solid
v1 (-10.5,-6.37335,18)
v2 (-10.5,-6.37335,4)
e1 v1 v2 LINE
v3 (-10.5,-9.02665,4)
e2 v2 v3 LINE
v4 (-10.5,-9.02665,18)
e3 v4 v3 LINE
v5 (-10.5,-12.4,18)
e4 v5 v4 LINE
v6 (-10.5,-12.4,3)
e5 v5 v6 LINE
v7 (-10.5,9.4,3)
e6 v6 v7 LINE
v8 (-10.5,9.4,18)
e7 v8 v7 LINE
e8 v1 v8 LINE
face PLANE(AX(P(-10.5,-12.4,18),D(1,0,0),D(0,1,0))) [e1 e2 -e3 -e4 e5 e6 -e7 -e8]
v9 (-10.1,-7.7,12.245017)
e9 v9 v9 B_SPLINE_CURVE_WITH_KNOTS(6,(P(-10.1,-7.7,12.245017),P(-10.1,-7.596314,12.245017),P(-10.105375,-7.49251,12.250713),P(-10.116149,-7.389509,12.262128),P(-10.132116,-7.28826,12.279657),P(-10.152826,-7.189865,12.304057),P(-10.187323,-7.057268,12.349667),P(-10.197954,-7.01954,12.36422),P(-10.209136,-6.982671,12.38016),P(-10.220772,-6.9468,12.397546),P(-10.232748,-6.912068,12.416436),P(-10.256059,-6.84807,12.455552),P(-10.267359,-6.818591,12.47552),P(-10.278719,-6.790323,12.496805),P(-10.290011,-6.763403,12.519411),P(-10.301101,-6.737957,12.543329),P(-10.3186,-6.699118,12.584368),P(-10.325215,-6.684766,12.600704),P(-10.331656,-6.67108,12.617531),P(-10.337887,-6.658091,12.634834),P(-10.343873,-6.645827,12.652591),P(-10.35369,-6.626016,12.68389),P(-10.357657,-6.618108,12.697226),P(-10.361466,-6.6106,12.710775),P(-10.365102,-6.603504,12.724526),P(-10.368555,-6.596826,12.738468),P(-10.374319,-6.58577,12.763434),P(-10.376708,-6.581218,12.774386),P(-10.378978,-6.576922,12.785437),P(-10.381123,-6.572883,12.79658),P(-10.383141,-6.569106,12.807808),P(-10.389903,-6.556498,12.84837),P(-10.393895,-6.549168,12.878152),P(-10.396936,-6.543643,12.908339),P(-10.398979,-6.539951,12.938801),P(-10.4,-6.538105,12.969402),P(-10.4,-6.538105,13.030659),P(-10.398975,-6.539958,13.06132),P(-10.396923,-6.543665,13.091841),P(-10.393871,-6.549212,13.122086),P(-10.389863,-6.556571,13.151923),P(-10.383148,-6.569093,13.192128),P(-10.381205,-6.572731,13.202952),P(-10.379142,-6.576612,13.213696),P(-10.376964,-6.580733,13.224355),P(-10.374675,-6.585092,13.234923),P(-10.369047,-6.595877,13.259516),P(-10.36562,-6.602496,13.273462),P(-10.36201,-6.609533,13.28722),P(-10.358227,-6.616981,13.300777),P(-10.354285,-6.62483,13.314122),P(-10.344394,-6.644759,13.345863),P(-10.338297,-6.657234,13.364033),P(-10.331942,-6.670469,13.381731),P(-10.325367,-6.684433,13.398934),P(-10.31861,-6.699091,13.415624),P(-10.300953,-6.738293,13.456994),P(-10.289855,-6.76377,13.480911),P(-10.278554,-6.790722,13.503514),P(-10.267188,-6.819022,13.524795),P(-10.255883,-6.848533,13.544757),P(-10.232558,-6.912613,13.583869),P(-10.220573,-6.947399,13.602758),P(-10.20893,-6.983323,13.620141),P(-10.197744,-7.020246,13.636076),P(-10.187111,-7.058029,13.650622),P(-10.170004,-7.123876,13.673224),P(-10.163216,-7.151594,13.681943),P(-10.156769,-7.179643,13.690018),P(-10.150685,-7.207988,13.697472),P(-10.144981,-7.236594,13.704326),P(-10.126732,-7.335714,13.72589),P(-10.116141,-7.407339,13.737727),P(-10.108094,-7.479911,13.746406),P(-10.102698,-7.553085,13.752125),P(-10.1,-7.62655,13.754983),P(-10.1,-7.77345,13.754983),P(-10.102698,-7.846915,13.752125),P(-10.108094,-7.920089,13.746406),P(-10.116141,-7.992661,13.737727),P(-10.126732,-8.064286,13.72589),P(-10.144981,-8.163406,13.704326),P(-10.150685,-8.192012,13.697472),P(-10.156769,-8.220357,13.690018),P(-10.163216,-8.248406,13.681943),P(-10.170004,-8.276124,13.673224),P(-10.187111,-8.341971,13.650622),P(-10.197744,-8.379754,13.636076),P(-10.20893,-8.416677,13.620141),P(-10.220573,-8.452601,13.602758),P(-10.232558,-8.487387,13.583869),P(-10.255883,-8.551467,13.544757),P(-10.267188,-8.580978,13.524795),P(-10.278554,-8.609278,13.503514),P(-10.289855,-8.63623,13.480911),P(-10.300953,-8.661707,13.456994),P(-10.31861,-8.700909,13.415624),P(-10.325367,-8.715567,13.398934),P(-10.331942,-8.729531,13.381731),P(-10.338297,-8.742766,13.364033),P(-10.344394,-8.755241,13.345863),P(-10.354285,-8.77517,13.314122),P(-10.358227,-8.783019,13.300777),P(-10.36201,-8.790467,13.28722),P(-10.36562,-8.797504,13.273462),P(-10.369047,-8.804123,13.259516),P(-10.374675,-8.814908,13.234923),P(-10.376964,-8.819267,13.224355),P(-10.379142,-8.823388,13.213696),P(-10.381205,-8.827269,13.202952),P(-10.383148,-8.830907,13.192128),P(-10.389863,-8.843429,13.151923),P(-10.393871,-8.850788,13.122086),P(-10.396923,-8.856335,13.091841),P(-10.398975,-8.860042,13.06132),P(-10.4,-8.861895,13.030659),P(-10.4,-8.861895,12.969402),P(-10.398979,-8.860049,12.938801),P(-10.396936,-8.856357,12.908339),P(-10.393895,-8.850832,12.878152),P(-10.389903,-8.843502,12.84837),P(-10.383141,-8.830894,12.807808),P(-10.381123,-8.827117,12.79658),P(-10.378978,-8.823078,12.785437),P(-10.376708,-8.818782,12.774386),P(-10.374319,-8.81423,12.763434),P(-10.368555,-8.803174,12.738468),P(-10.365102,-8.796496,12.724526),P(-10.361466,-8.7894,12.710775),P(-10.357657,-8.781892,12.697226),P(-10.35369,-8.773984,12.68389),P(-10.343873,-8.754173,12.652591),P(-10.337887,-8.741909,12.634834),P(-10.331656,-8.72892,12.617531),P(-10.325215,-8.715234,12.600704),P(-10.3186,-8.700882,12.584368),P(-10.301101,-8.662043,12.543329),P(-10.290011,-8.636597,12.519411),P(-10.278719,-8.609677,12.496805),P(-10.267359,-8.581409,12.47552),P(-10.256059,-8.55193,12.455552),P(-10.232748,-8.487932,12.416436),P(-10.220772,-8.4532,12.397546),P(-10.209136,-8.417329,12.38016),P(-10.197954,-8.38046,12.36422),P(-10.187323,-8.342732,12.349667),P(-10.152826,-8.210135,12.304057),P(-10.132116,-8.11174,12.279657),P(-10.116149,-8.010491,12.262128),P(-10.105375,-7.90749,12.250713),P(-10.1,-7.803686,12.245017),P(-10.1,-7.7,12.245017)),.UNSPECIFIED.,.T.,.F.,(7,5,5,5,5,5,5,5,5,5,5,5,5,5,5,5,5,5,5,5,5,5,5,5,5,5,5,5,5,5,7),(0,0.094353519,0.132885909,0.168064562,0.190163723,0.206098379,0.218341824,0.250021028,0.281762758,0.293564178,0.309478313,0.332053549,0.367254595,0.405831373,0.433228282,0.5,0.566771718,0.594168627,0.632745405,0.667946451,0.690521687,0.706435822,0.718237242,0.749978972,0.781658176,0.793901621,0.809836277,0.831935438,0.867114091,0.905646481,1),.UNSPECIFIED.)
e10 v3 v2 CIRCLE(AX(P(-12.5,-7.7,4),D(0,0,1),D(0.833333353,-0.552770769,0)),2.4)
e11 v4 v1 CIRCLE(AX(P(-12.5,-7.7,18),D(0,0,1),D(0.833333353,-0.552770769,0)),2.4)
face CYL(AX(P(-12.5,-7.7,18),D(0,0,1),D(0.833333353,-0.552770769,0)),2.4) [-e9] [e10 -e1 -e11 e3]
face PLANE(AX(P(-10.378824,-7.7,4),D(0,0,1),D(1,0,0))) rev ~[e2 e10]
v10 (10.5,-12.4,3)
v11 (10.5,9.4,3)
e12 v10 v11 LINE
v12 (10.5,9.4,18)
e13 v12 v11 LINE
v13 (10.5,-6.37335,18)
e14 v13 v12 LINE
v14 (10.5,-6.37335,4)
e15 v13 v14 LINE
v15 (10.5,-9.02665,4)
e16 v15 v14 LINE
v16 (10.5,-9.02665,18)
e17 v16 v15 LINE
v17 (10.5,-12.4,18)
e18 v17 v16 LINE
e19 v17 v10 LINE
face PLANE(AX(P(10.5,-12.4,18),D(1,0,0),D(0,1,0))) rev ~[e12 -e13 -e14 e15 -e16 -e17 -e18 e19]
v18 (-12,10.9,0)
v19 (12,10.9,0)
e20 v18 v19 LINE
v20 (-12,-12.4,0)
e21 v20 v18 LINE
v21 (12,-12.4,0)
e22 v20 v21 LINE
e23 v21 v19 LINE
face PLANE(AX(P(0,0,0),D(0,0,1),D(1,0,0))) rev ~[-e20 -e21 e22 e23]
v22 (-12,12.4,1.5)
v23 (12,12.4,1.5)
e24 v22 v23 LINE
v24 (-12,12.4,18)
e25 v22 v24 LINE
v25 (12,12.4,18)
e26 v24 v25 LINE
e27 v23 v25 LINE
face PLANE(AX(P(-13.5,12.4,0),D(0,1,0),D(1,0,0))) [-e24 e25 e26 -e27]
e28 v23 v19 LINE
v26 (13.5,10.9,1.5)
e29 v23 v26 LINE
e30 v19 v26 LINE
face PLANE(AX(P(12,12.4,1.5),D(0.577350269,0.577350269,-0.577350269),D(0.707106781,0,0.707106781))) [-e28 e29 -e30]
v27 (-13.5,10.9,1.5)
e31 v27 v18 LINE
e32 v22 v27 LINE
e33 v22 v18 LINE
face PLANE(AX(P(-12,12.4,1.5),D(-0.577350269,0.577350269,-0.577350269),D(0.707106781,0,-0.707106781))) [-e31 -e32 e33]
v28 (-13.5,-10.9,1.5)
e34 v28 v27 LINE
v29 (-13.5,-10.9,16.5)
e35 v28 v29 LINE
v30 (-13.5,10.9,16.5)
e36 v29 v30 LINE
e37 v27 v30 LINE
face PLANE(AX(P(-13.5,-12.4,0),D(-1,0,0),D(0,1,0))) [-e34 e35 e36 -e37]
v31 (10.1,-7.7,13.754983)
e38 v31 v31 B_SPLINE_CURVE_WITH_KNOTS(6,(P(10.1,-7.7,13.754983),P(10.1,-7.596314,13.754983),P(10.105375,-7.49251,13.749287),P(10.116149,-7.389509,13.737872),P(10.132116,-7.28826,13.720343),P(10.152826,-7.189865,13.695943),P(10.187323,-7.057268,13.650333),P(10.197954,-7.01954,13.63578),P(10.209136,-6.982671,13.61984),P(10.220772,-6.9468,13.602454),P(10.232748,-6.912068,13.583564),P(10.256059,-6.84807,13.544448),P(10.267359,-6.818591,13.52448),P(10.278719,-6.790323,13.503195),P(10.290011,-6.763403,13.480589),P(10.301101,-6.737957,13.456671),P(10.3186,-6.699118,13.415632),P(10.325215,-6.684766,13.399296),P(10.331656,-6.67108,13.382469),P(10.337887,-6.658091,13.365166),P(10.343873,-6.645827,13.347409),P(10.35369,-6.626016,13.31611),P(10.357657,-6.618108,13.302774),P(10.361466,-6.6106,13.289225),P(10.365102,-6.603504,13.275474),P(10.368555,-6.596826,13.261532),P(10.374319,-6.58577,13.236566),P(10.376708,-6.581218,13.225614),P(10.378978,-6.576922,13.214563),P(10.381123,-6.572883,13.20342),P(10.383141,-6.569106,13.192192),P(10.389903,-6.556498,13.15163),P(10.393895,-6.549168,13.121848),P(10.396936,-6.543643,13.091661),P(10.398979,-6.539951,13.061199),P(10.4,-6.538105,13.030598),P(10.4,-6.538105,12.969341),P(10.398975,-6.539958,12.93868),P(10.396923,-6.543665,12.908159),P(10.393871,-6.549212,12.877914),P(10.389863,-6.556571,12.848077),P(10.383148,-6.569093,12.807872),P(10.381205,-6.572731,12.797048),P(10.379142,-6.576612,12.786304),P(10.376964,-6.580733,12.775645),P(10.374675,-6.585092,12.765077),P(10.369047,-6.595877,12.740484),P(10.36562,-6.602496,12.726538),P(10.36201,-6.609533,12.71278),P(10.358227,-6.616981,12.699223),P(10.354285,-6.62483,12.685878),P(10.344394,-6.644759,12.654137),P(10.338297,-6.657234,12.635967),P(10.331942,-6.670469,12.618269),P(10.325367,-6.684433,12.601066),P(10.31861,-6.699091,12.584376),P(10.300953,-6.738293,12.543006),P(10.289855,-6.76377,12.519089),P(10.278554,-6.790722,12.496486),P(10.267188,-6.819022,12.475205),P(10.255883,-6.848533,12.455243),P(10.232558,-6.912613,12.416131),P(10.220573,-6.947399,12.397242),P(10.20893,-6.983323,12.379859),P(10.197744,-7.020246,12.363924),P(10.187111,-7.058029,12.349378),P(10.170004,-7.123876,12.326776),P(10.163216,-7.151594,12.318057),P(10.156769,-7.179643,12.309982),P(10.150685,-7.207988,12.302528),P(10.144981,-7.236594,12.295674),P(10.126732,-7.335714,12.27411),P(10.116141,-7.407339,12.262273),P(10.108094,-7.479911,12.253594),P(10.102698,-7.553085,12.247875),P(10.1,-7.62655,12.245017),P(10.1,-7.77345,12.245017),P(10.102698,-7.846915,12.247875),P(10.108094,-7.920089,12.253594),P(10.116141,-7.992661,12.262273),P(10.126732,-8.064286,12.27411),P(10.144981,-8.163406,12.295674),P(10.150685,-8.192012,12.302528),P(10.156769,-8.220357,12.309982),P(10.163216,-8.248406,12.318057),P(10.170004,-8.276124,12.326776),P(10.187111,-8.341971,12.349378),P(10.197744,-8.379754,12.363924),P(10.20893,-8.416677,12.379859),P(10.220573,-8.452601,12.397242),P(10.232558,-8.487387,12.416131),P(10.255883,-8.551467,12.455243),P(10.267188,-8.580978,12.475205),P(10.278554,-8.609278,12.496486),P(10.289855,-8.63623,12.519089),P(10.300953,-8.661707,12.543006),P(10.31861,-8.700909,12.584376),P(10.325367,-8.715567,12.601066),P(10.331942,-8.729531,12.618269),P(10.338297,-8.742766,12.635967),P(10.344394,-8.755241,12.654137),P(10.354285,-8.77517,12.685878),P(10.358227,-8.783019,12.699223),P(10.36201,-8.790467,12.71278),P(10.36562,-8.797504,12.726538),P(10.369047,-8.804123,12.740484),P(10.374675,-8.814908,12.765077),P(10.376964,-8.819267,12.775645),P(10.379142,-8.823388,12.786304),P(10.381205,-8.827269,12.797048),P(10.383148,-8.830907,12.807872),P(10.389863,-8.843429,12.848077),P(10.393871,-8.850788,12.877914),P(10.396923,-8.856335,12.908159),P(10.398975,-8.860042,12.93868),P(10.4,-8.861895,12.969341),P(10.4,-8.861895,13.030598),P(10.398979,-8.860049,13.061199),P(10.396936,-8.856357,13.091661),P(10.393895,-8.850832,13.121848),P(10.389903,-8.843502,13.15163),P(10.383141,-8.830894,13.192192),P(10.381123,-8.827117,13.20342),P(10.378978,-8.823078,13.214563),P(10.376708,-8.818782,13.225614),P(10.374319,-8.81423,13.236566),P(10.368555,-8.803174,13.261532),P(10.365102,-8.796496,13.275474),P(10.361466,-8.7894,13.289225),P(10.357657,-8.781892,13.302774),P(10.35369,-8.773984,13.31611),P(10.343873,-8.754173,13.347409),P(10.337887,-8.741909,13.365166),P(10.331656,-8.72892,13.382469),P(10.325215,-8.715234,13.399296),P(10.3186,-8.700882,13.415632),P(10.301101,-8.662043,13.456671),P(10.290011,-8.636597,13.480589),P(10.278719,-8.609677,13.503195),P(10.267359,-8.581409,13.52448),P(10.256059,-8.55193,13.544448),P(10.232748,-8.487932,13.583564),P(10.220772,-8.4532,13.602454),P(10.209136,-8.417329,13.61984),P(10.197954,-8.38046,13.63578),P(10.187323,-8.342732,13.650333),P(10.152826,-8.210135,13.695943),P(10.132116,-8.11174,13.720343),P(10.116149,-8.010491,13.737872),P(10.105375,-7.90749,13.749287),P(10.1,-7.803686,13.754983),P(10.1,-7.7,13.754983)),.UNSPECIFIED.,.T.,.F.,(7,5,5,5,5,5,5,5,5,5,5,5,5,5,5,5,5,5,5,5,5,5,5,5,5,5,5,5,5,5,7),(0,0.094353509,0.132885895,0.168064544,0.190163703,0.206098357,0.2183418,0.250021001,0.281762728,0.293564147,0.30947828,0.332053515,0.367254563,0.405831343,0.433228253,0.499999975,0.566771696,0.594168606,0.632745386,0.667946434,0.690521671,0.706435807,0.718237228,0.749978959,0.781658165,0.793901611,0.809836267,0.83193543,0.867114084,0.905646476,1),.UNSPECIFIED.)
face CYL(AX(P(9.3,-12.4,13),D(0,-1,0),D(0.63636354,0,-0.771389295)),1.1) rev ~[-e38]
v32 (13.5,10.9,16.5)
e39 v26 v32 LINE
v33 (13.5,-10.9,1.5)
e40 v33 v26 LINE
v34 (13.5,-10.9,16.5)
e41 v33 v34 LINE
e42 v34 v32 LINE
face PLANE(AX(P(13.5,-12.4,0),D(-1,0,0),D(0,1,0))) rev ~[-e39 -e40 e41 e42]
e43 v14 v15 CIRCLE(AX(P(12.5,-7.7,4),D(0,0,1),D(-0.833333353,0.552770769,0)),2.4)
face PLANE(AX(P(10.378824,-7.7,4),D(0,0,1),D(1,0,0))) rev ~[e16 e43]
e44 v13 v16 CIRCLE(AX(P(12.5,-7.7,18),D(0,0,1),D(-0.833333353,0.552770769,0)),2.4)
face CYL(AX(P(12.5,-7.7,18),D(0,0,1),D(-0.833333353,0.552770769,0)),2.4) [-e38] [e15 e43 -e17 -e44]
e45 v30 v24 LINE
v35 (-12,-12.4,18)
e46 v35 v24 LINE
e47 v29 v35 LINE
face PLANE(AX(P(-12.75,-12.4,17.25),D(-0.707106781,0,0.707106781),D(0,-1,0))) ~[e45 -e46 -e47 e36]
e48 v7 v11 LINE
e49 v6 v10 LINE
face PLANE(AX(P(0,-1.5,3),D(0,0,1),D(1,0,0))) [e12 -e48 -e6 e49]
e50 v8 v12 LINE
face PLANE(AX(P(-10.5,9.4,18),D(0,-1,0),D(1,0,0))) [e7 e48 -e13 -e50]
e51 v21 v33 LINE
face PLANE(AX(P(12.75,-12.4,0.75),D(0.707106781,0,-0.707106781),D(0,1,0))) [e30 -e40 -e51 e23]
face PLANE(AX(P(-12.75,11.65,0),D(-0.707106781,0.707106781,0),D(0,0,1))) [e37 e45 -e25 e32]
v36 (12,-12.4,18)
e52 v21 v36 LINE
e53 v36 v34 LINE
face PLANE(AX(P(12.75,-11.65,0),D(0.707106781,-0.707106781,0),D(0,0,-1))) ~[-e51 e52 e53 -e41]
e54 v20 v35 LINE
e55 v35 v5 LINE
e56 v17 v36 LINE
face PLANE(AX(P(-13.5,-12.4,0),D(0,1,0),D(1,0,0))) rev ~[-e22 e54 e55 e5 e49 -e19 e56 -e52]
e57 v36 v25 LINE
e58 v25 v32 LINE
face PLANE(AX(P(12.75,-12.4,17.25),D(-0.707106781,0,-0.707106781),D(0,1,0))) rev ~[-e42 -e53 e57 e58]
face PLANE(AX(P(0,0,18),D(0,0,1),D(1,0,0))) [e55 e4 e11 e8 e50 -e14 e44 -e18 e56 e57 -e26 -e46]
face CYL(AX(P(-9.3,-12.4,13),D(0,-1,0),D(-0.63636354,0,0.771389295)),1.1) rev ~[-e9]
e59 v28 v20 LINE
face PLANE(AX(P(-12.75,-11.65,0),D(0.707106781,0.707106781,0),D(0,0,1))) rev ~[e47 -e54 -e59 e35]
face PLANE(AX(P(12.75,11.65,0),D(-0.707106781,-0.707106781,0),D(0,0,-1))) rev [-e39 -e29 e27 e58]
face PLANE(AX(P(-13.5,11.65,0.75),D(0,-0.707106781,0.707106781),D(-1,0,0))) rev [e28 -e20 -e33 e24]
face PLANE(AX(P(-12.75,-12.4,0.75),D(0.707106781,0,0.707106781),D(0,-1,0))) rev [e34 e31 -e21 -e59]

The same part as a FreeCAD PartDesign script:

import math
import FreeCAD as App
import Part
import Sketcher

V = App.Vector
Q = App.Units.Quantity


def edges_at(feature, points):
    """Names of the edges that pass closest to the given points."""
    edges = feature.Shape.Edges
    near = lambda p: min(range(len(edges)), key=lambda i: edges[i].distToShape(Part.Vertex(*p))[0])
    return sorted({f"Edge{near(p) + 1}" for p in points})

doc = App.newDocument("Part")
params = doc.addObject("Spreadsheet::Sheet", "Params")
for row, (alias, value) in enumerate([
    ("sketch1_width", "27 mm"),
    ("sketch1_height", "24.8 mm"),
    ("pad1_length", "18 mm"),
    ("sketch2_width", "21 mm"),
    ("sketch2_height", "21.8 mm"),
    ("pocket1_length", "15 mm"),
    ("sketch3_radius", "2.4 mm"),
    ("sketch3_width", "2 mm"),
    ("pad2_length", "14 mm"),
    ("sketch4_radius", "1.1 mm"),
    ("pocket2_length", "10 mm"),
    ("chamfer_size", "1.5 mm"),
], start=1):
    params.set(f"A{row}", alias)
    params.set(f"B{row}", "=" + value)
    params.setAlias(f"B{row}", alias)

body = doc.addObject("PartDesign::Body", "Body")

# Sketch on XY plane
sketch1 = body.newObject("Sketcher::SketchObject", "Sketch")
sketch1.AttachmentSupport = (doc.getObject("XY_Plane"), [""])
sketch1.MapMode = "FlatFace"
sketch1.addGeometry([
    Part.LineSegment(V(-14, 12, 0), V(-14, -12, 0)),
    Part.LineSegment(V(-14, -12, 0), V(14, -12, 0)),
    Part.LineSegment(V(14, -12, 0), V(14, 12, 0)),
    Part.LineSegment(V(14, 12, 0), V(-14, 12, 0)),
], False)
sketch1.addConstraint([
    Sketcher.Constraint("Coincident", 0, 2, 1, 1),
    Sketcher.Constraint("Coincident", 1, 2, 2, 1),
    Sketcher.Constraint("Coincident", 2, 2, 3, 1),
    Sketcher.Constraint("Coincident", 3, 2, 0, 1),
    Sketcher.Constraint("Vertical", 0),
    Sketcher.Constraint("Horizontal", 1),
    Sketcher.Constraint("Vertical", 2),
    Sketcher.Constraint("Horizontal", 3),
    Sketcher.Constraint("Symmetric", 0, 2, 2, 2, -1, 1),
    Sketcher.Constraint("DistanceX", 1, 1, 1, 2, Q("27 mm")),
    Sketcher.Constraint("DistanceY", 0, 2, 0, 1, Q("24.8 mm")),
])
sketch1.setExpression("Constraints[9]", "Params.sketch1_width")
sketch1.setExpression("Constraints[10]", "Params.sketch1_height")
pad1 = body.newObject("PartDesign::Pad", "Pad")
pad1.Profile = sketch1
pad1.setExpression("Length", "Params.pad1_length")

# Sketch on XY plane
sketch2 = body.newObject("Sketcher::SketchObject", "Sketch001")
sketch2.AttachmentSupport = (doc.getObject("XY_Plane"), [""])
sketch2.MapMode = "FlatFace"
sketch2.AttachmentOffset = App.Placement(V(0, 0, 18), App.Rotation())
sketch2.addGeometry([
    Part.LineSegment(V(-10, 9, 0), V(-10, -12, 0)),
    Part.LineSegment(V(-10, -12, 0), V(10, -12, 0)),
    Part.LineSegment(V(10, -12, 0), V(10, 9, 0)),
    Part.LineSegment(V(10, 9, 0), V(-10, 9, 0)),
], False)
sketch2.addConstraint([
    Sketcher.Constraint("Coincident", 0, 2, 1, 1),
    Sketcher.Constraint("Coincident", 1, 2, 2, 1),
    Sketcher.Constraint("Coincident", 2, 2, 3, 1),
    Sketcher.Constraint("Coincident", 3, 2, 0, 1),
    Sketcher.Constraint("Vertical", 0),
    Sketcher.Constraint("Horizontal", 1),
    Sketcher.Constraint("Vertical", 2),
    Sketcher.Constraint("Horizontal", 3),
    Sketcher.Constraint("DistanceX", 1, 1, 1, 2, Q("21 mm")),
    Sketcher.Constraint("DistanceY", 0, 2, 0, 1, Q("21.8 mm")),
    Sketcher.Constraint("DistanceX", 0, 2, -1, 1, Q("10.5 mm")),
    Sketcher.Constraint("DistanceY", 0, 2, -1, 1, Q("12.4 mm")),
])
sketch2.setExpression("Constraints[8]", "Params.sketch2_width")
sketch2.setExpression("Constraints[9]", "Params.sketch2_height")
pocket1 = body.newObject("PartDesign::Pocket", "Pocket")
pocket1.Profile = sketch2
pocket1.setExpression("Length", "Params.pocket1_length")

# Sketch on XY plane
sketch3 = body.newObject("Sketcher::SketchObject", "Sketch002")
sketch3.AttachmentSupport = (doc.getObject("XY_Plane"), [""])
sketch3.MapMode = "FlatFace"
sketch3.AttachmentOffset = App.Placement(V(0, 0, 18), App.Rotation())
sketch3.addGeometry([
    Part.ArcOfCircle(Part.Circle(V(-12.5, -7.7, 0), V(0, 0, 1), 2.4), math.radians(-34), math.radians(34)),
    Part.LineSegment(V(-10.5, -6.4, 0), V(-10.5, -9, 0)),
    Part.ArcOfCircle(Part.Circle(V(12.5, -7.7, 0), V(0, 0, 1), 2.4), math.radians(146), math.radians(214)),
    Part.LineSegment(V(10.5, -9, 0), V(10.5, -6.4, 0)),
], False)
sketch3.addConstraint([
    Sketcher.Constraint("Coincident", 0, 1, 1, 2),
    Sketcher.Constraint("Coincident", 1, 1, 0, 2),
    Sketcher.Constraint("Coincident", 2, 1, 3, 2),
    Sketcher.Constraint("Coincident", 3, 1, 2, 2),
    Sketcher.Constraint("Vertical", 1),
    Sketcher.Constraint("Vertical", 3),
    Sketcher.Constraint("Equal", 0, 2),
    Sketcher.Constraint("Symmetric", 0, 3, 2, 3, -2),
    Sketcher.Constraint("Horizontal", 1, 1, 2, 1),
    Sketcher.Constraint("Radius", 0, Q("2.4 mm")),
    Sketcher.Constraint("DistanceX", 0, 3, 2, 3, Q("25.000001 mm")),
    Sketcher.Constraint("DistanceX", 0, 3, 0, 1, Q("2 mm")),
    Sketcher.Constraint("DistanceY", 0, 3, -1, 1, Q("7.7 mm")),
])
sketch3.setExpression("Constraints[9]", "Params.sketch3_radius")
sketch3.setExpression("Constraints[11]", "Params.sketch3_width")
pad2 = body.newObject("PartDesign::Pad", "Pad001")
pad2.Profile = sketch3
pad2.setExpression("Length", "Params.pad2_length")
pad2.Reversed = True

# Sketch on XZ plane
sketch4 = body.newObject("Sketcher::SketchObject", "Sketch003")
sketch4.AttachmentSupport = (doc.getObject("XZ_Plane"), [""])
sketch4.MapMode = "FlatFace"
sketch4.AttachmentOffset = App.Placement(V(0, 0, 12.4), App.Rotation())
sketch4.addGeometry([
    Part.ArcOfCircle(Part.Circle(V(9.3, 13, 0), V(0, 0, 1), 1.1), math.radians(-50), math.radians(50)),
    Part.LineSegment(V(10, 13.8, 0), V(10, 12.2, 0)),
    Part.LineSegment(V(-10, 12.2, 0), V(-10, 13.8, 0)),
    Part.ArcOfCircle(Part.Circle(V(-9.3, 13, 0), V(0, 0, 1), 1.1), math.radians(130), math.radians(230)),
], False)
sketch4.addConstraint([
    Sketcher.Constraint("Coincident", 0, 1, 1, 2),
    Sketcher.Constraint("Coincident", 1, 1, 0, 2),
    Sketcher.Constraint("Coincident", 2, 1, 3, 2),
    Sketcher.Constraint("Coincident", 3, 1, 2, 2),
    Sketcher.Constraint("Vertical", 1),
    Sketcher.Constraint("Vertical", 2),
    Sketcher.Constraint("Equal", 0, 3),
    Sketcher.Constraint("Symmetric", 0, 3, 3, 3, -2),
    Sketcher.Constraint("Horizontal", 0, 1, 2, 1),
    Sketcher.Constraint("Radius", 0, Q("1.1 mm")),
    Sketcher.Constraint("DistanceY", -1, 1, 0, 3, Q("13 mm")),
    Sketcher.Constraint("DistanceX", -1, 1, 0, 1, Q("10 mm")),
    Sketcher.Constraint("DistanceX", -1, 1, 0, 3, Q("9.3 mm")),
])
sketch4.setExpression("Constraints[9]", "Params.sketch4_radius")
pocket2 = body.newObject("PartDesign::Pocket", "Pocket001")
pocket2.Profile = sketch4
pocket2.setExpression("Length", "Params.pocket2_length")
doc.recompute()

chamfer = body.newObject("PartDesign::Chamfer", "Chamfer")
chamfer.Base = (pocket2, edges_at(pocket2, [
    (13.5, 0, 0),
    (13.5, 0, 18),
    (-13.5, 0, 18),
    (-13.5, 0, 0),
    (-13.5, 12.4, 9),
    (0, 12.4, 0),
    (13.5, -12.4, 9),
    (-13.5, -12.4, 9),
    (13.5, 12.4, 9),
]))
chamfer.setExpression("Size", "Params.chamfer_size")

doc.recompute()
